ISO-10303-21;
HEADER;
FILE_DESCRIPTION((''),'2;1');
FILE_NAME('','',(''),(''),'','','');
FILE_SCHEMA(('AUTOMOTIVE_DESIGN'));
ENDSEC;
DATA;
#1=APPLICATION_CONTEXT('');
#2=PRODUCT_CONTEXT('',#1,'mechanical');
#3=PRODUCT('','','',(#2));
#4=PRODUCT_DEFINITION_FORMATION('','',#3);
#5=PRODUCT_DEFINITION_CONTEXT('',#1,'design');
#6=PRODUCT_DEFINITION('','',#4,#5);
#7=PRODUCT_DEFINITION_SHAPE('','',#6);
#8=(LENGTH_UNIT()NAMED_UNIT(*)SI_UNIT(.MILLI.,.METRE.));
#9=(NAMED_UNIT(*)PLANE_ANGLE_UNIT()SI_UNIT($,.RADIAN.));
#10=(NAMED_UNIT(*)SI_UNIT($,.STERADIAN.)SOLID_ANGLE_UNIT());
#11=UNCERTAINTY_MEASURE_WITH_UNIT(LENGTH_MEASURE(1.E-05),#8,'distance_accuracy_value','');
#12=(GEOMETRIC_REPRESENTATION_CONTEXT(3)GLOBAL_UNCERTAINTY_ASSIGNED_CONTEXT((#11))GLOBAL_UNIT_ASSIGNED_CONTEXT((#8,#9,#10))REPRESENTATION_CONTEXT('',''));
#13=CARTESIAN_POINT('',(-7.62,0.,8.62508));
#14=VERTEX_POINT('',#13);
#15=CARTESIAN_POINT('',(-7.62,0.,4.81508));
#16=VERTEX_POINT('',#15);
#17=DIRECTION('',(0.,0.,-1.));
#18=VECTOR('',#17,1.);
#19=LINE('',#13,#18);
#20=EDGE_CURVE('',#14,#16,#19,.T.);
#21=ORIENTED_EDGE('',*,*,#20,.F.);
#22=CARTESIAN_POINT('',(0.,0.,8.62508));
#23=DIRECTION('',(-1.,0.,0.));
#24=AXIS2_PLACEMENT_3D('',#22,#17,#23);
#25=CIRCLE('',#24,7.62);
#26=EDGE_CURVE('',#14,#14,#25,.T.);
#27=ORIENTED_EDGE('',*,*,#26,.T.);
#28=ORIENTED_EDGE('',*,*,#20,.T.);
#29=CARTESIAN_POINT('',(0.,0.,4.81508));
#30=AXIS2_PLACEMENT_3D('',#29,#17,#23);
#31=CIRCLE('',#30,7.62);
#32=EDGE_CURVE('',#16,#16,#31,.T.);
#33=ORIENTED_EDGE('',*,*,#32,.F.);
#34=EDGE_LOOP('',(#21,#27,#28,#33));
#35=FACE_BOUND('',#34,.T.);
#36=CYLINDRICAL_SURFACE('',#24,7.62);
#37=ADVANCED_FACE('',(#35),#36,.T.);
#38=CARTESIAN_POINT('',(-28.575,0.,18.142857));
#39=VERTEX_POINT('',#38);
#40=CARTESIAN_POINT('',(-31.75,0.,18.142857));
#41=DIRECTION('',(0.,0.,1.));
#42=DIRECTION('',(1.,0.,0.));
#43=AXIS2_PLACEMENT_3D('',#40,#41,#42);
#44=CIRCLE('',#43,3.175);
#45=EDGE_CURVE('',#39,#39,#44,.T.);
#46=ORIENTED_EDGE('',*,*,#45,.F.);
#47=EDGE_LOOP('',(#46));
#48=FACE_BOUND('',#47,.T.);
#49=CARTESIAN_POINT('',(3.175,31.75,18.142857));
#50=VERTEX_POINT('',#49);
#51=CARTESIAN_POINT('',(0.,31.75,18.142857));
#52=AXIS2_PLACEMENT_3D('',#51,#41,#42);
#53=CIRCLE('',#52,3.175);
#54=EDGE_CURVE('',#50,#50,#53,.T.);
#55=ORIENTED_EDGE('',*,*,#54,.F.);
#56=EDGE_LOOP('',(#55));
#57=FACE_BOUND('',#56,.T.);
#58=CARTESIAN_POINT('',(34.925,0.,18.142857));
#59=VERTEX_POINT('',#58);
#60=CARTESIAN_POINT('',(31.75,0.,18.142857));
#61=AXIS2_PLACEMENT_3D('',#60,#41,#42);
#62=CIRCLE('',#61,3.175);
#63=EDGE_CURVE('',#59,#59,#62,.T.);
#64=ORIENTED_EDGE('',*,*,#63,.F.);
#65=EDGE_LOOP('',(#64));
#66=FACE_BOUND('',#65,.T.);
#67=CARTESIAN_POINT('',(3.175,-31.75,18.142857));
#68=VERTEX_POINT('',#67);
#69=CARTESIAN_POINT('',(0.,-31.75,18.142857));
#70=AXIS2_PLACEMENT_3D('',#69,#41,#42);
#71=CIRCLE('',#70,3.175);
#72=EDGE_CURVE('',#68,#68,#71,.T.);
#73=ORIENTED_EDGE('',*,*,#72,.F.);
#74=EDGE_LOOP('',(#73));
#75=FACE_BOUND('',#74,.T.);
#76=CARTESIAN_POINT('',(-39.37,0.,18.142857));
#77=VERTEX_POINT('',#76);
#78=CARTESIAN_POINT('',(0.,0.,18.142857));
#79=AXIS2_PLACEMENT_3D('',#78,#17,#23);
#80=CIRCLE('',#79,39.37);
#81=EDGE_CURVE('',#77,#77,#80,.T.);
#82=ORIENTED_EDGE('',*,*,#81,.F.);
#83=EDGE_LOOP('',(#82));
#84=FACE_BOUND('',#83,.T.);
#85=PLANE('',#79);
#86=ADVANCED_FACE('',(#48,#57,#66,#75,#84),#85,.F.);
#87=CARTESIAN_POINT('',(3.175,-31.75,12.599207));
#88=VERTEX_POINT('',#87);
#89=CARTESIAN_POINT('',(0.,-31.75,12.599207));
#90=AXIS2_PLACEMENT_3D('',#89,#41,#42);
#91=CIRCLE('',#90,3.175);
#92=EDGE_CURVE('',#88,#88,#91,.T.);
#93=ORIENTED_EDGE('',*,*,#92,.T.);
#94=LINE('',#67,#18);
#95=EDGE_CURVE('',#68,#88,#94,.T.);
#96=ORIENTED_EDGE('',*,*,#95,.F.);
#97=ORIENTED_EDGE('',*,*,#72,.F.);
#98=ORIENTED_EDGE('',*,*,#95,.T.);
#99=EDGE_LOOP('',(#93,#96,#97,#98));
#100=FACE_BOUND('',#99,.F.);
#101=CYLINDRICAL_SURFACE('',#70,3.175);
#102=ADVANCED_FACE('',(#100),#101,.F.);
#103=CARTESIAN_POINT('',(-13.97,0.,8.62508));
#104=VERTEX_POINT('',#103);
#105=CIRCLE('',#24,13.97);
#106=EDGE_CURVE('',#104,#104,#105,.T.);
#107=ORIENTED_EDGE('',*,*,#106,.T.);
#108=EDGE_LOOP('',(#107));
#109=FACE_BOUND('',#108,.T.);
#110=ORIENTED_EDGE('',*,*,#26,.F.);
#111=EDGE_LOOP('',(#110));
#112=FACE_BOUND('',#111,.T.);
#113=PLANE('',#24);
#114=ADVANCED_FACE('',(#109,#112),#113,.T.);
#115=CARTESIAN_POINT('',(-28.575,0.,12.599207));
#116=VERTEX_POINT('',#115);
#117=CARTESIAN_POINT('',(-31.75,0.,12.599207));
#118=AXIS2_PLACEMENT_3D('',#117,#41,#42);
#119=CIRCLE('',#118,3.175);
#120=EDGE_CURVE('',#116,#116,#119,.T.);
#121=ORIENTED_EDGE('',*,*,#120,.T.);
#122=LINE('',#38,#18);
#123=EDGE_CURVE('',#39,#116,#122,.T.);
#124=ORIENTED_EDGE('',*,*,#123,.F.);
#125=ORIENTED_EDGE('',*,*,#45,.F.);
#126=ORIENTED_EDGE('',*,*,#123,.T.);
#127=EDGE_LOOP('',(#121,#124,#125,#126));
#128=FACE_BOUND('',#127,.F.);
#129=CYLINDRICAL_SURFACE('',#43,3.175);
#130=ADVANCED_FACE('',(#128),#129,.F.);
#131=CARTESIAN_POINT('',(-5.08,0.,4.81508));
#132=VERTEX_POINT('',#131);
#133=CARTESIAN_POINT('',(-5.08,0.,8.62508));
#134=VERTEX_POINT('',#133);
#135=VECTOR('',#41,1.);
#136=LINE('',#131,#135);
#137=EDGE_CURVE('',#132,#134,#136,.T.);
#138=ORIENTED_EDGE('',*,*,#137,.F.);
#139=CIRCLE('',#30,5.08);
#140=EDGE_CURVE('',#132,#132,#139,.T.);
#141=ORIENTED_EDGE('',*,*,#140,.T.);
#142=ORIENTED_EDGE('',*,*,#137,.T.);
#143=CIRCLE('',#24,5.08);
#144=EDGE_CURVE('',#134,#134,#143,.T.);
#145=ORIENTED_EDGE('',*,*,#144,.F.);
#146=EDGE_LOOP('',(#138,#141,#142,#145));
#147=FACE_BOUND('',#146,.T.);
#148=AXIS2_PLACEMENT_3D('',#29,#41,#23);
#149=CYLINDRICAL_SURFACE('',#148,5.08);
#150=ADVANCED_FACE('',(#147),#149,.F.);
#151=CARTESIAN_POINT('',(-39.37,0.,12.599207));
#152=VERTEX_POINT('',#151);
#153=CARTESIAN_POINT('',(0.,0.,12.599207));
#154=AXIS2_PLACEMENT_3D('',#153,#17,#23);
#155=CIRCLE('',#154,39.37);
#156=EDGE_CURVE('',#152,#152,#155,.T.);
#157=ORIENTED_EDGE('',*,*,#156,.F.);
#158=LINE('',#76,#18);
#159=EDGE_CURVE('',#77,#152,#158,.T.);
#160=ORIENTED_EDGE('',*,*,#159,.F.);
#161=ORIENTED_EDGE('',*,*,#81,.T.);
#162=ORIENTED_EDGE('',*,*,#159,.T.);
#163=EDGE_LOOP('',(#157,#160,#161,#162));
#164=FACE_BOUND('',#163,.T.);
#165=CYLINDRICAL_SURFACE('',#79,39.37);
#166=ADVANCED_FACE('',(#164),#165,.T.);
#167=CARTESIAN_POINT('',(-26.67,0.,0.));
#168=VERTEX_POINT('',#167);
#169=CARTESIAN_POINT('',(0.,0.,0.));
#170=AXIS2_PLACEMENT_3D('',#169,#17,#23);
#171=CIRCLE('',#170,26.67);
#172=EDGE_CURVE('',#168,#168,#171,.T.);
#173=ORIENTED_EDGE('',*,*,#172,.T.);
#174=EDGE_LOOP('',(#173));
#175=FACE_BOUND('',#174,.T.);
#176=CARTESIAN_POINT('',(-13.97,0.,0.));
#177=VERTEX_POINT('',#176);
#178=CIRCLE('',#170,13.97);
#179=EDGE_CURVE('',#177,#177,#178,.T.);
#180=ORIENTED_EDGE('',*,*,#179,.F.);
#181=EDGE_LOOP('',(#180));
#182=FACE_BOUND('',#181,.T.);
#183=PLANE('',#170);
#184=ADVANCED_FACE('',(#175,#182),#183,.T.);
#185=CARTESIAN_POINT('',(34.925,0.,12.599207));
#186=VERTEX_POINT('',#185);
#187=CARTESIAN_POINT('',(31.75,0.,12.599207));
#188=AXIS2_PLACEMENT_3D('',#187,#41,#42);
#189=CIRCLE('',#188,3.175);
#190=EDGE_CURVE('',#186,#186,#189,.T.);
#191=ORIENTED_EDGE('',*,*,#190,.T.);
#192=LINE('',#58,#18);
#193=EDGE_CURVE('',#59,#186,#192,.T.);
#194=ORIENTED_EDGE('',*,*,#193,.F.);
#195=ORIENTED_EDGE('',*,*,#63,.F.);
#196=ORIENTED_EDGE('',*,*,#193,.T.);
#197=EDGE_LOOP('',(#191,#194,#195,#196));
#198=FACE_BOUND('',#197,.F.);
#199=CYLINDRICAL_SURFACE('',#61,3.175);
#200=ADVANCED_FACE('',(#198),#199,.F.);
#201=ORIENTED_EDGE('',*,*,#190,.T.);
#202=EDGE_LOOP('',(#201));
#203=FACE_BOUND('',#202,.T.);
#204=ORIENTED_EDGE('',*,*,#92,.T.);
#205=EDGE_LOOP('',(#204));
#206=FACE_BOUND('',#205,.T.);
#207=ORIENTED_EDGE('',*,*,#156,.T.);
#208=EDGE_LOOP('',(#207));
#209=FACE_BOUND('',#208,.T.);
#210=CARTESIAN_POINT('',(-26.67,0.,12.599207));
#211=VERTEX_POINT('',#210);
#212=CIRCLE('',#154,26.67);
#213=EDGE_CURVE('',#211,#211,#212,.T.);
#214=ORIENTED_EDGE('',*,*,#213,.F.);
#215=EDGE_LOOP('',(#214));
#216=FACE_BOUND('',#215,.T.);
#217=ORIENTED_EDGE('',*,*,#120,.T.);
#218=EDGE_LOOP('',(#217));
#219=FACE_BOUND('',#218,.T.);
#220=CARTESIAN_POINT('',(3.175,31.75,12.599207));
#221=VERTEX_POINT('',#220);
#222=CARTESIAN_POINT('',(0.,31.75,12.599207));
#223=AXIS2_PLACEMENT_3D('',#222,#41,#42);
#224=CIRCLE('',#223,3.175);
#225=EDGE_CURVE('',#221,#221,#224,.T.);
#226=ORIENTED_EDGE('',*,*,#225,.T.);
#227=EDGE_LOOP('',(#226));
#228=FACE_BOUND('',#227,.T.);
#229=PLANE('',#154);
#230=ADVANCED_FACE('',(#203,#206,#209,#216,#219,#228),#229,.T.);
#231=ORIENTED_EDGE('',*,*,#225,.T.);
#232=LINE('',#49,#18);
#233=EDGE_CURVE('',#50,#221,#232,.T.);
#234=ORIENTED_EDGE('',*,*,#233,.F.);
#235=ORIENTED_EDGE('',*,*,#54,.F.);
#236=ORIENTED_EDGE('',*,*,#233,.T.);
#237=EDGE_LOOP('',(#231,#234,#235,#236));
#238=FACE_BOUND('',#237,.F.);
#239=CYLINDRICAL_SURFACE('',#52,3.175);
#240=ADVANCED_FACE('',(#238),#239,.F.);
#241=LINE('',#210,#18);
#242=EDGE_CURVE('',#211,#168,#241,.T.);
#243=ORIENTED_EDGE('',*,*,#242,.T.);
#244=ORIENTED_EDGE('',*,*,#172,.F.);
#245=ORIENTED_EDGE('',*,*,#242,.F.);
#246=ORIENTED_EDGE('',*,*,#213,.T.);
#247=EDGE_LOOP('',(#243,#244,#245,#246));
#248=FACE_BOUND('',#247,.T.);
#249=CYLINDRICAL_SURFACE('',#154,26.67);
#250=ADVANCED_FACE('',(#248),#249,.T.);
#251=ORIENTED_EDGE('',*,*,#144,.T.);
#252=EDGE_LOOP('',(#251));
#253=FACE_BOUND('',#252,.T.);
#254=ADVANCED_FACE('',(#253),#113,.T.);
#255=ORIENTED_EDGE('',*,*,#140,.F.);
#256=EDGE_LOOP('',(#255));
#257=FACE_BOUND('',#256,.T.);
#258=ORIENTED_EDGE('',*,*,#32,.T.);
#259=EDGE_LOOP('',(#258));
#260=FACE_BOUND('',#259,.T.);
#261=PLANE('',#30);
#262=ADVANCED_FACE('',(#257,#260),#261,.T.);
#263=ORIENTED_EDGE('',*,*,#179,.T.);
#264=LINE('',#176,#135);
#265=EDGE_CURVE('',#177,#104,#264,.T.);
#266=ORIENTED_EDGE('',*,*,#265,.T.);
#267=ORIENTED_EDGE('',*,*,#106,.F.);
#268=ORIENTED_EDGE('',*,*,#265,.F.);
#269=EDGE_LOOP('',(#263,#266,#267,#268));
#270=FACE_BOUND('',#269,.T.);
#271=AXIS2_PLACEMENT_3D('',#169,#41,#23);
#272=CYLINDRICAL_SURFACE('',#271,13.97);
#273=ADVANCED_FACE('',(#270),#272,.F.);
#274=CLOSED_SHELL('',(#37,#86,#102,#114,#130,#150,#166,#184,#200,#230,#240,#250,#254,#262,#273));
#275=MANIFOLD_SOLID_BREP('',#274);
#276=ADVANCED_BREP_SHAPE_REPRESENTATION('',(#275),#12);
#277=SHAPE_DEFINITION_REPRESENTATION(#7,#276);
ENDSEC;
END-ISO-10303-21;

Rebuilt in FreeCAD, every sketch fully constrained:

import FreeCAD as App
import Part
import Sketcher

V = App.Vector
Q = App.Units.Quantity


def add_polygon(sketch, points):
    """Adds a closed chain of lines whose ends are joined by coincident constraints."""
    first, n = sketch.GeometryCount, len(points)
    for a, b in zip(points, points[1:] + points[:1]):
        sketch.addGeometry(Part.LineSegment(App.Vector(*a, 0), App.Vector(*b, 0)), False)
    for i in range(n):
        sketch.addConstraint(Sketcher.Constraint("Coincident", first + i, 2, first + (i + 1) % n, 1))

doc = App.newDocument("Part")
body = doc.addObject("PartDesign::Body", "Body")

# Sketch on XZ plane
sketch1 = body.newObject("Sketcher::SketchObject", "Sketch")
sketch1.AttachmentSupport = (doc.getObject("XZ_Plane"), [""])
sketch1.MapMode = "FlatFace"
add_polygon(sketch1, [(0, 8.6), (0, 18.1), (-39.4, 18.1), (-39.4, 12.6), (-26.7, 12.6), (-26.7, 0), (-14, 0), (-14, 8.6), (-7.6, 8.6), (-7.6, 4.8), (-5.1, 4.8), (-5.1, 8.6)])  # lines 0-11
sketch1.addConstraint(Sketcher.Constraint("Vertical", 0))
sketch1.addConstraint(Sketcher.Constraint("Horizontal", 1))
sketch1.addConstraint(Sketcher.Constraint("Vertical", 2))
sketch1.addConstraint(Sketcher.Constraint("Horizontal", 3))
sketch1.addConstraint(Sketcher.Constraint("Vertical", 4))
sketch1.addConstraint(Sketcher.Constraint("Horizontal", 5))
sketch1.addConstraint(Sketcher.Constraint("Vertical", 6))
sketch1.addConstraint(Sketcher.Constraint("Horizontal", 7))
sketch1.addConstraint(Sketcher.Constraint("Vertical", 8))
sketch1.addConstraint(Sketcher.Constraint("Horizontal", 9))
sketch1.addConstraint(Sketcher.Constraint("Vertical", 10))
sketch1.addConstraint(Sketcher.Constraint("Horizontal", 11))
sketch1.addConstraint(Sketcher.Constraint("PointOnObject", 0, 2, -2))
sketch1.addConstraint(Sketcher.Constraint("PointOnObject", 4, 2, -1))
sketch1.addConstraint(Sketcher.Constraint("Horizontal", 7, 2, 10, 2))
sketch1.addConstraint(Sketcher.Constraint("Equal", 3, 5))
sketch1.addConstraint(Sketcher.Constraint("DistanceX", 3, 1, 3, 2, Q("0.5 in")))
sketch1.addConstraint(Sketcher.Constraint("DistanceX", 9, 1, 9, 2, Q("0.1 in")))
sketch1.addConstraint(Sketcher.Constraint("DistanceX", 11, 1, 11, 2, Q("0.2 in")))
sketch1.addConstraint(Sketcher.Constraint("DistanceX", 1, 2, 1, 1, Q("1.55 in")))
sketch1.addConstraint(Sketcher.Constraint("DistanceY", 8, 2, 8, 1, Q("0.15 in")))
sketch1.addConstraint(Sketcher.Constraint("DistanceY", 2, 2, 2, 1, Q("5.54365 mm")))
sketch1.addConstraint(Sketcher.Constraint("DistanceY", 6, 1, 6, 2, Q("8.62508 mm")))
sketch1.addConstraint(Sketcher.Constraint("DistanceY", 0, 1, 0, 2, Q("9.517777 mm")))
revolution = body.newObject("PartDesign::Revolution", "Revolution")
revolution.Profile = sketch1
revolution.ReferenceAxis = (sketch1, ["V_Axis"])
revolution.Angle = 360

# Sketch on XY plane
sketch2 = body.newObject("Sketcher::SketchObject", "Sketch001")
sketch2.AttachmentSupport = (doc.getObject("XY_Plane"), [""])
sketch2.MapMode = "FlatFace"
sketch2.AttachmentOffset = App.Placement(V(0, 0, 18.142857), App.Rotation())
sketch2.addGeometry(Part.Circle(V(0, 31.8, 0), V(0, 0, 1), 3.2), False)
sketch2.addGeometry(Part.Circle(V(31.8, 0, 0), V(0, 0, 1), 3.2), False)
sketch2.addGeometry(Part.Circle(V(0, -31.8, 0), V(0, 0, 1), 3.2), False)
sketch2.addGeometry(Part.Circle(V(-31.8, 0, 0), V(0, 0, 1), 3.2), False)
sketch2.addConstraint(Sketcher.Constraint("Equal", 0, 1))
sketch2.addConstraint(Sketcher.Constraint("Equal", 1, 2))
sketch2.addConstraint(Sketcher.Constraint("Equal", 2, 3))
sketch2.addConstraint(Sketcher.Constraint("Symmetric", 0, 3, 2, 3, -1, 1))
sketch2.addConstraint(Sketcher.Constraint("Symmetric", 1, 3, 3, 3, -1, 1))
sketch2.addConstraint(Sketcher.Constraint("PointOnObject", 0, 3, -2))
sketch2.addConstraint(Sketcher.Constraint("PointOnObject", 1, 3, -1))
sketch2.addConstraint(Sketcher.Constraint("Diameter", 0, Q("0.25 in")))
sketch2.addConstraint(Sketcher.Constraint("DistanceY", 2, 3, 0, 3, Q("2.5 in")))
sketch2.addConstraint(Sketcher.Constraint("DistanceX", 3, 3, 1, 3, Q("2.5 in")))
pocket1 = body.newObject("PartDesign::Pocket", "Pocket")
pocket1.Profile = sketch2
pocket1.Type = "ThroughAll"

doc.recompute()
